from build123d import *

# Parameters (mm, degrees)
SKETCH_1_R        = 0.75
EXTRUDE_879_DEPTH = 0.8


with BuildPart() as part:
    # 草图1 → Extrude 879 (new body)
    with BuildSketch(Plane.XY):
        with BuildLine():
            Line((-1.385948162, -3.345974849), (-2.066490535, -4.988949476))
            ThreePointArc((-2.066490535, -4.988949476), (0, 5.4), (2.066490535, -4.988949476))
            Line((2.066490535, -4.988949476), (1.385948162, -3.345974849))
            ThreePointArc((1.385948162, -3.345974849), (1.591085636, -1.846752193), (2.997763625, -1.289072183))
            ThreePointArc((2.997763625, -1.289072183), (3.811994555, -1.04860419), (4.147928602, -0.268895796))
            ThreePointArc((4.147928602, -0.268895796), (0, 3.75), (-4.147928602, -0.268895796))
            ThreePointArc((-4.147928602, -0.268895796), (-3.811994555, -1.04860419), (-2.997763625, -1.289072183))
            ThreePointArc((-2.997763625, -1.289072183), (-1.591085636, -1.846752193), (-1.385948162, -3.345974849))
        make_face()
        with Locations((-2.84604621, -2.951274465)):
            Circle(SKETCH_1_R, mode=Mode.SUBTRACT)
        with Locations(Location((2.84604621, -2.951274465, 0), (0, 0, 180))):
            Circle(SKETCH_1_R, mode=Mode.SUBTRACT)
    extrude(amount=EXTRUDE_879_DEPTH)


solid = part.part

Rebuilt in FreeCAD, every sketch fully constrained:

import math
import FreeCAD as App
import Part
import Sketcher
Q = App.Units.Quantity

doc = App.newDocument("Part")
params = doc.addObject("Spreadsheet::Sheet", "Params")
for row, (alias, value) in enumerate([
    ("sketch1_radius", "1 mm"),
    ("sketch1_diameter", "1.5 mm"),
    ("sketch1_radius2", "1.5 mm"),
    ("sketch1_radius3", "5.4 mm"),
    ("sketch1_radius4", "4.15 mm"),
    ("pad1_length", "0.8 mm"),
], start=1):
    params.set(f"A{row}", alias)
    params.set(f"B{row}", "=" + value)
    params.setAlias(f"B{row}", alias)

body = doc.addObject("PartDesign::Body", "Body")

# Sketch on XY plane
sketch1 = doc.addObject("Sketcher::SketchObject", "Sketch")
body.addObject(sketch1)
sketch1.AttachmentSupport = (doc.XY_Plane, [""])
sketch1.MapMode = "FlatFace"
sketch1.addGeometry(Part.LineSegment(App.Vector(-2.1, -5, 0), App.Vector(-1.4, -3.3, 0)), False)
sketch1.addGeometry(Part.ArcOfCircle(Part.Circle(App.Vector(-2.8, -2.8, 0), App.Vector(0, 0, 1), 1.5), math.radians(-22), math.radians(99)), False)
sketch1.addGeometry(Part.ArcOfCircle(Part.Circle(App.Vector(-3.1, -0.3, 0), App.Vector(0, 0, 1), 1), math.radians(178), math.radians(279)), False)
sketch1.addGeometry(Part.ArcOfCircle(Part.Circle(App.Vector(0, -0.4, 0), App.Vector(0, 0, 1), 4.2), math.radians(2), math.radians(178)), False)
sketch1.addGeometry(Part.ArcOfCircle(Part.Circle(App.Vector(3.1, -0.3, 0), App.Vector(0, 0, 1), 1), math.radians(-99), math.radians(2)), False)
sketch1.addGeometry(Part.ArcOfCircle(Part.Circle(App.Vector(2.8, -2.8, 0), App.Vector(0, 0, 1), 1.5), math.radians(81), math.radians(202)), False)
sketch1.addGeometry(Part.LineSegment(App.Vector(1.4, -3.3, 0), App.Vector(2.1, -5, 0)), False)
sketch1.addGeometry(Part.ArcOfCircle(Part.Circle(App.Vector(0, 0, 0), App.Vector(0, 0, 1), 5.4), math.radians(-67), math.radians(247)), False)
sketch1.addGeometry(Part.Circle(App.Vector(2.8, -3, 0), App.Vector(0, 0, 1), 0.8), False)
sketch1.addGeometry(Part.Circle(App.Vector(-2.8, -3, 0), App.Vector(0, 0, 1), 0.8), False)
sketch1.addConstraint(Sketcher.Constraint("Tangent", 0, 2, 1, 1))
sketch1.addConstraint(Sketcher.Constraint("Tangent", 1, 2, 2, 2))
sketch1.addConstraint(Sketcher.Constraint("Tangent", 2, 1, 3, 2))
sketch1.addConstraint(Sketcher.Constraint("Tangent", 3, 1, 4, 2))
sketch1.addConstraint(Sketcher.Constraint("Tangent", 4, 1, 5, 1))
sketch1.addConstraint(Sketcher.Constraint("Tangent", 5, 2, 6, 1))
sketch1.addConstraint(Sketcher.Constraint("Coincident", 6, 2, 7, 1))
sketch1.addConstraint(Sketcher.Constraint("Coincident", 7, 2, 0, 1))
sketch1.addConstraint(Sketcher.Constraint("Coincident", 7, 3, -1, 1))
sketch1.addConstraint(Sketcher.Constraint("Equal", 2, 4))
sketch1.addConstraint(Sketcher.Constraint("Equal", 1, 5))
sketch1.addConstraint(Sketcher.Constraint("Equal", 8, 9))
sketch1.addConstraint(Sketcher.Constraint("Symmetric", 2, 3, 4, 3, -2))
sketch1.addConstraint(Sketcher.Constraint("Symmetric", 8, 3, 9, 3, -2))
sketch1.addConstraint(Sketcher.Constraint("Symmetric", 0, 2, 5, 2, -2))
sketch1.addConstraint(Sketcher.Constraint("Radius", 2, 1.0))
sketch1.addConstraint(Sketcher.Constraint("Diameter", 8, 1.5))
sketch1.addConstraint(Sketcher.Constraint("Radius", 1, 1.5))
sketch1.addConstraint(Sketcher.Constraint("Radius", 7, 5.4))
sketch1.addConstraint(Sketcher.Constraint("Radius", 3, 4.15))
sketch1.addConstraint(Sketcher.Constraint("Angle", 0, Q("67.5 deg")))
sketch1.addConstraint(Sketcher.Constraint("DistanceY", 3, 3, -1, 1, 0.4))
sketch1.addConstraint(Sketcher.Constraint("DistanceY", 6, 2, 5, 3, 2.217))
sketch1.addConstraint(Sketcher.Constraint("DistanceX", 9, 3, 0, 2, 1.460098))
sketch1.addConstraint(Sketcher.Constraint("DistanceY", 0, 2, 9, 3, 0.3947))
sketch1.addConstraint(Sketcher.Constraint("DistanceY", 1, 3, -1, 1, 2.77195))
sketch1.setExpression("Constraints[15]", "Params.sketch1_radius")
sketch1.setExpression("Constraints[16]", "Params.sketch1_diameter")
sketch1.setExpression("Constraints[17]", "Params.sketch1_radius2")
sketch1.setExpression("Constraints[18]", "Params.sketch1_radius3")
sketch1.setExpression("Constraints[19]", "Params.sketch1_radius4")
pad1 = doc.addObject("PartDesign::Pad", "Pad")
body.addObject(pad1)
pad1.Profile = sketch1
pad1.setExpression("Length", "Params.pad1_length")

doc.recompute()
